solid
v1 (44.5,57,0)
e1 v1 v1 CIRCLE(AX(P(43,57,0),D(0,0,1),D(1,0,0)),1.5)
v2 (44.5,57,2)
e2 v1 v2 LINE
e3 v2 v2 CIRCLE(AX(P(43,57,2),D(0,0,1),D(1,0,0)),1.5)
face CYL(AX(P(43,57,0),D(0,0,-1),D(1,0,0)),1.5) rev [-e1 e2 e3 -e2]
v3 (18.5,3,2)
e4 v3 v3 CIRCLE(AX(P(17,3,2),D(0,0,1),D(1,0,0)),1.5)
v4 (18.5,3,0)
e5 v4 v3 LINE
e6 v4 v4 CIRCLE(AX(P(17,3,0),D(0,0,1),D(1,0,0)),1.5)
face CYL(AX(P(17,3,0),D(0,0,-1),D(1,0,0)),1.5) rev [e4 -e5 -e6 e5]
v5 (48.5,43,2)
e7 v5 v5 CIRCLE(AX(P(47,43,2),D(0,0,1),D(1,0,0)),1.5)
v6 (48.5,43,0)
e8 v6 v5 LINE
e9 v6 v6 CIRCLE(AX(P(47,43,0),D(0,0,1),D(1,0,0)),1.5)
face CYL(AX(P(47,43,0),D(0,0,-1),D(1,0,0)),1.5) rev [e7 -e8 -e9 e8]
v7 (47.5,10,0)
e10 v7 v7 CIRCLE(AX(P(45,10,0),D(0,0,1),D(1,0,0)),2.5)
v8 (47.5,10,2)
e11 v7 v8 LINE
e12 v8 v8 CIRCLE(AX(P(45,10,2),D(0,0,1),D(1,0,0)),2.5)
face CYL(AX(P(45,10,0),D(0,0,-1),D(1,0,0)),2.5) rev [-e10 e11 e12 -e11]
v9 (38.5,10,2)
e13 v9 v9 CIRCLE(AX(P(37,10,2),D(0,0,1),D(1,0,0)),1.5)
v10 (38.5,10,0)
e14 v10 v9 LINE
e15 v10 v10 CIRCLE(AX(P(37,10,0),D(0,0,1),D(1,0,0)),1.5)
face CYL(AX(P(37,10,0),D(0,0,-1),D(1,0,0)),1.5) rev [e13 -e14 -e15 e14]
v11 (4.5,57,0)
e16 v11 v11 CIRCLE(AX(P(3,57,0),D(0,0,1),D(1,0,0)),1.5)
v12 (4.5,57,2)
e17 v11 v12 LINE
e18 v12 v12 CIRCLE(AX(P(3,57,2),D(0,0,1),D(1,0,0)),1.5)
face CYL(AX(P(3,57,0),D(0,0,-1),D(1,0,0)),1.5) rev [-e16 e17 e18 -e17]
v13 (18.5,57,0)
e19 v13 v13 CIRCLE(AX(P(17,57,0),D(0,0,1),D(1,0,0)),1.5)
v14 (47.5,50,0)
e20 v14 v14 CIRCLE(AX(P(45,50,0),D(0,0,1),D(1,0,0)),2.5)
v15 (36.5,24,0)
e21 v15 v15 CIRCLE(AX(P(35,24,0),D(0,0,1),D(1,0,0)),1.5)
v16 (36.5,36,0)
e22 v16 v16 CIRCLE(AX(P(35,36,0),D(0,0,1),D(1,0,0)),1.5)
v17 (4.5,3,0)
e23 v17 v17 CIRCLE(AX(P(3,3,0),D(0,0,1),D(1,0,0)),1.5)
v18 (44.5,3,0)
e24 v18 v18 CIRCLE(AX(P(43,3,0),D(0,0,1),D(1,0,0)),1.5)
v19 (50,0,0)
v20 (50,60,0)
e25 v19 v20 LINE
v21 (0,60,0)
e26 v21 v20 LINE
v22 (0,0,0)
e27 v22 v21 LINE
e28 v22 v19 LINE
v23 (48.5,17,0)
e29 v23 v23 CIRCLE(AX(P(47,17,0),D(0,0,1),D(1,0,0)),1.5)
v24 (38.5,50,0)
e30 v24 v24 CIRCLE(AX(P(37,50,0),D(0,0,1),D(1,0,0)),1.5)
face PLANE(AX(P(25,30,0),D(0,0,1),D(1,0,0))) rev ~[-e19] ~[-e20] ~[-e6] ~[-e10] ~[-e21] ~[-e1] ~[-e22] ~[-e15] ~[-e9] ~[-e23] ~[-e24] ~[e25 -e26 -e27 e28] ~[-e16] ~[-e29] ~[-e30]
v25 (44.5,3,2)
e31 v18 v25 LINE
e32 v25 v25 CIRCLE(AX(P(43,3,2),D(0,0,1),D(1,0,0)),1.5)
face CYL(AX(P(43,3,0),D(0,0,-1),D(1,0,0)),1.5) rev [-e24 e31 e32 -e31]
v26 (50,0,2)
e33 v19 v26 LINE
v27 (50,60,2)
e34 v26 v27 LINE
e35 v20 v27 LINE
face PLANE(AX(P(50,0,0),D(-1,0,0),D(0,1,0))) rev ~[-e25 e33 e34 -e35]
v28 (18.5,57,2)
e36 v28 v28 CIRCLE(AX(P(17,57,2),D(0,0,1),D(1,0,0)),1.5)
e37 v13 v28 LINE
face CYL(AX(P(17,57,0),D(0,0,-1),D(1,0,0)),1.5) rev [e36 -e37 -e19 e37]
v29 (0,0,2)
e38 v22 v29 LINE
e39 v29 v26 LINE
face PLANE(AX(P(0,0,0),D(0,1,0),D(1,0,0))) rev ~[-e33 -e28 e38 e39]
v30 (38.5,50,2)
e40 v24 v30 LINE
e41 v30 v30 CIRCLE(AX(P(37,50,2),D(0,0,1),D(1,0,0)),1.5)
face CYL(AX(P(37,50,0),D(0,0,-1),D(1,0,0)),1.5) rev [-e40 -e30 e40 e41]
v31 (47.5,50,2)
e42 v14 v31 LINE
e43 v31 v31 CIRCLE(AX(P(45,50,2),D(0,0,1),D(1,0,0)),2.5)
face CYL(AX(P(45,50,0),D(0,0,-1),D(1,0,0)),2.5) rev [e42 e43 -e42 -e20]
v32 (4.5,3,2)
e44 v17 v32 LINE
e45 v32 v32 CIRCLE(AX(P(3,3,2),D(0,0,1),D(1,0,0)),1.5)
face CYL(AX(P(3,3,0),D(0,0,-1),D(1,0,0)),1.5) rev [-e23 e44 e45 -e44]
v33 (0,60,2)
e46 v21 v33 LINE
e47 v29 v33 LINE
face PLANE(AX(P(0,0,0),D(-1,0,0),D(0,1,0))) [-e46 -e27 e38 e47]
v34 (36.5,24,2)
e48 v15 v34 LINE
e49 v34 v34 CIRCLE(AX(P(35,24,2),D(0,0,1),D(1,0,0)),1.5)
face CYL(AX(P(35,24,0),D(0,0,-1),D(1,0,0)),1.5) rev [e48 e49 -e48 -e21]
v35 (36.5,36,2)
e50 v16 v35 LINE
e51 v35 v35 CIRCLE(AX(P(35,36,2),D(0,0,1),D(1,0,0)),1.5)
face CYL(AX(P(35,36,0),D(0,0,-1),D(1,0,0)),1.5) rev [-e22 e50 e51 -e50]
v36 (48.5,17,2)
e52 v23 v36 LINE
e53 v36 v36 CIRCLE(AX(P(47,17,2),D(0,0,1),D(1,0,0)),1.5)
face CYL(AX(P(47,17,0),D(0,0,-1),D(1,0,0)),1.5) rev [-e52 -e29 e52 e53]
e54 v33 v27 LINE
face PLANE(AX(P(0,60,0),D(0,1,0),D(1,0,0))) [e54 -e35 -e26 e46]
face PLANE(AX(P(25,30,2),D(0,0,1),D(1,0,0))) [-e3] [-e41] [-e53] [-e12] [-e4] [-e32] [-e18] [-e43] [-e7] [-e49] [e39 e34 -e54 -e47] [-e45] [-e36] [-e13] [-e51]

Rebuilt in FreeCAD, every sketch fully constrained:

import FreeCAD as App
import Part
import Sketcher
Q = App.Units.Quantity

doc = App.newDocument("Part")
body = doc.addObject("PartDesign::Body", "Body")

# Sketch on XY plane
sketch1 = doc.addObject("Sketcher::SketchObject", "Sketch")
body.addObject(sketch1)
sketch1.AttachmentSupport = (doc.XY_Plane, [""])
sketch1.MapMode = "FlatFace"
sketch1.addGeometry([
    Part.LineSegment(App.Vector(0, 60, 0), App.Vector(0, 0, 0)),  # 0
    Part.LineSegment(App.Vector(0, 0, 0), App.Vector(50, 0, 0)),  # 1
    Part.LineSegment(App.Vector(50, 0, 0), App.Vector(50, 60, 0)),  # 2
    Part.LineSegment(App.Vector(50, 60, 0), App.Vector(0, 60, 0)),  # 3
    Part.Circle(App.Vector(3, 3, 0), App.Vector(0, 0, 1), 1.5),  # 4
    Part.Circle(App.Vector(17, 3, 0), App.Vector(0, 0, 1), 1.5),  # 5
    Part.Circle(App.Vector(43, 3, 0), App.Vector(0, 0, 1), 1.5),  # 6
    Part.Circle(App.Vector(37, 10, 0), App.Vector(0, 0, 1), 1.5),  # 7
    Part.Circle(App.Vector(45, 10, 0), App.Vector(0, 0, 1), 2.5),  # 8
    Part.Circle(App.Vector(35, 24, 0), App.Vector(0, 0, 1), 1.5),  # 9
    Part.Circle(App.Vector(47, 17, 0), App.Vector(0, 0, 1), 1.5),  # 10
    Part.Circle(App.Vector(3, 57, 0), App.Vector(0, 0, 1), 1.5),  # 11
    Part.Circle(App.Vector(17, 57, 0), App.Vector(0, 0, 1), 1.5),  # 12
    Part.Circle(App.Vector(35, 36, 0), App.Vector(0, 0, 1), 1.5),  # 13
    Part.Circle(App.Vector(47, 43, 0), App.Vector(0, 0, 1), 1.5),  # 14
    Part.Circle(App.Vector(37, 50, 0), App.Vector(0, 0, 1), 1.5),  # 15
    Part.Circle(App.Vector(45, 50, 0), App.Vector(0, 0, 1), 2.5),  # 16
    Part.Circle(App.Vector(43, 57, 0), App.Vector(0, 0, 1), 1.5),  # 17
], False)
sketch1.addConstraint([
    Sketcher.Constraint("Coincident", 0, 2, 1, 1),
    Sketcher.Constraint("Coincident", 1, 2, 2, 1),
    Sketcher.Constraint("Coincident", 2, 2, 3, 1),
    Sketcher.Constraint("Coincident", 3, 2, 0, 1),
    Sketcher.Constraint("Vertical", 0),
    Sketcher.Constraint("Horizontal", 1),
    Sketcher.Constraint("Vertical", 2),
    Sketcher.Constraint("Horizontal", 3),
    Sketcher.Constraint("Coincident", 0, 2, -1, 1),
    Sketcher.Constraint("Equal", 4, 5),
    Sketcher.Constraint("Equal", 5, 6),
    Sketcher.Constraint("Equal", 6, 7),
    Sketcher.Constraint("Equal", 7, 9),
    Sketcher.Constraint("Equal", 9, 10),
    Sketcher.Constraint("Equal", 10, 11),
    Sketcher.Constraint("Equal", 11, 12),
    Sketcher.Constraint("Equal", 12, 13),
    Sketcher.Constraint("Equal", 13, 14),
    Sketcher.Constraint("Equal", 14, 15),
    Sketcher.Constraint("Equal", 8, 16),
    Sketcher.Constraint("Equal", 15, 17),
    Sketcher.Constraint("Horizontal", 4, 3, 5, 3),
    Sketcher.Constraint("Horizontal", 5, 3, 6, 3),
    Sketcher.Constraint("Horizontal", 7, 3, 8, 3),
    Sketcher.Constraint("Horizontal", 11, 3, 12, 3),
    Sketcher.Constraint("Horizontal", 15, 3, 16, 3),
    Sketcher.Constraint("Horizontal", 12, 3, 17, 3),
    Sketcher.Constraint("Vertical", 4, 3, 11, 3),
    Sketcher.Constraint("Vertical", 5, 3, 12, 3),
    Sketcher.Constraint("Vertical", 9, 3, 13, 3),
    Sketcher.Constraint("Vertical", 10, 3, 14, 3),
    Sketcher.Constraint("Vertical", 7, 3, 15, 3),
    Sketcher.Constraint("Vertical", 8, 3, 16, 3),
    Sketcher.Constraint("Vertical", 6, 3, 17, 3),
    Sketcher.Constraint("Diameter", 4, Q("3 mm")),
    Sketcher.Constraint("Diameter", 8, Q("5 mm")),
    Sketcher.Constraint("DistanceX", 1, 1, 1, 2, Q("50 mm")),
    Sketcher.Constraint("DistanceY", 0, 2, 0, 1, Q("60 mm")),
    Sketcher.Constraint("DistanceX", -1, 1, 4, 3, Q("3 mm")),
    Sketcher.Constraint("DistanceY", -1, 1, 4, 3, Q("3 mm")),
    Sketcher.Constraint("DistanceX", -1, 1, 5, 3, Q("17 mm")),
    Sketcher.Constraint("DistanceX", -1, 1, 6, 3, Q("43 mm")),
    Sketcher.Constraint("DistanceX", -1, 1, 7, 3, Q("37 mm")),
    Sketcher.Constraint("DistanceY", -1, 1, 7, 3, Q("10 mm")),
    Sketcher.Constraint("DistanceX", -1, 1, 8, 3, Q("45 mm")),
    Sketcher.Constraint("DistanceX", -1, 1, 9, 3, Q("35 mm")),
    Sketcher.Constraint("DistanceY", -1, 1, 9, 3, Q("24 mm")),
    Sketcher.Constraint("DistanceX", -1, 1, 10, 3, Q("47 mm")),
    Sketcher.Constraint("DistanceY", -1, 1, 10, 3, Q("17 mm")),
    Sketcher.Constraint("DistanceY", -1, 1, 11, 3, Q("57 mm")),
    Sketcher.Constraint("DistanceY", -1, 1, 13, 3, Q("36 mm")),
    Sketcher.Constraint("DistanceY", -1, 1, 14, 3, Q("43 mm")),
    Sketcher.Constraint("DistanceY", -1, 1, 15, 3, Q("50 mm")),
])
pad1 = doc.addObject("PartDesign::Pad", "Pad")
body.addObject(pad1)
pad1.Profile = sketch1
pad1.Length = 2

doc.recompute()
